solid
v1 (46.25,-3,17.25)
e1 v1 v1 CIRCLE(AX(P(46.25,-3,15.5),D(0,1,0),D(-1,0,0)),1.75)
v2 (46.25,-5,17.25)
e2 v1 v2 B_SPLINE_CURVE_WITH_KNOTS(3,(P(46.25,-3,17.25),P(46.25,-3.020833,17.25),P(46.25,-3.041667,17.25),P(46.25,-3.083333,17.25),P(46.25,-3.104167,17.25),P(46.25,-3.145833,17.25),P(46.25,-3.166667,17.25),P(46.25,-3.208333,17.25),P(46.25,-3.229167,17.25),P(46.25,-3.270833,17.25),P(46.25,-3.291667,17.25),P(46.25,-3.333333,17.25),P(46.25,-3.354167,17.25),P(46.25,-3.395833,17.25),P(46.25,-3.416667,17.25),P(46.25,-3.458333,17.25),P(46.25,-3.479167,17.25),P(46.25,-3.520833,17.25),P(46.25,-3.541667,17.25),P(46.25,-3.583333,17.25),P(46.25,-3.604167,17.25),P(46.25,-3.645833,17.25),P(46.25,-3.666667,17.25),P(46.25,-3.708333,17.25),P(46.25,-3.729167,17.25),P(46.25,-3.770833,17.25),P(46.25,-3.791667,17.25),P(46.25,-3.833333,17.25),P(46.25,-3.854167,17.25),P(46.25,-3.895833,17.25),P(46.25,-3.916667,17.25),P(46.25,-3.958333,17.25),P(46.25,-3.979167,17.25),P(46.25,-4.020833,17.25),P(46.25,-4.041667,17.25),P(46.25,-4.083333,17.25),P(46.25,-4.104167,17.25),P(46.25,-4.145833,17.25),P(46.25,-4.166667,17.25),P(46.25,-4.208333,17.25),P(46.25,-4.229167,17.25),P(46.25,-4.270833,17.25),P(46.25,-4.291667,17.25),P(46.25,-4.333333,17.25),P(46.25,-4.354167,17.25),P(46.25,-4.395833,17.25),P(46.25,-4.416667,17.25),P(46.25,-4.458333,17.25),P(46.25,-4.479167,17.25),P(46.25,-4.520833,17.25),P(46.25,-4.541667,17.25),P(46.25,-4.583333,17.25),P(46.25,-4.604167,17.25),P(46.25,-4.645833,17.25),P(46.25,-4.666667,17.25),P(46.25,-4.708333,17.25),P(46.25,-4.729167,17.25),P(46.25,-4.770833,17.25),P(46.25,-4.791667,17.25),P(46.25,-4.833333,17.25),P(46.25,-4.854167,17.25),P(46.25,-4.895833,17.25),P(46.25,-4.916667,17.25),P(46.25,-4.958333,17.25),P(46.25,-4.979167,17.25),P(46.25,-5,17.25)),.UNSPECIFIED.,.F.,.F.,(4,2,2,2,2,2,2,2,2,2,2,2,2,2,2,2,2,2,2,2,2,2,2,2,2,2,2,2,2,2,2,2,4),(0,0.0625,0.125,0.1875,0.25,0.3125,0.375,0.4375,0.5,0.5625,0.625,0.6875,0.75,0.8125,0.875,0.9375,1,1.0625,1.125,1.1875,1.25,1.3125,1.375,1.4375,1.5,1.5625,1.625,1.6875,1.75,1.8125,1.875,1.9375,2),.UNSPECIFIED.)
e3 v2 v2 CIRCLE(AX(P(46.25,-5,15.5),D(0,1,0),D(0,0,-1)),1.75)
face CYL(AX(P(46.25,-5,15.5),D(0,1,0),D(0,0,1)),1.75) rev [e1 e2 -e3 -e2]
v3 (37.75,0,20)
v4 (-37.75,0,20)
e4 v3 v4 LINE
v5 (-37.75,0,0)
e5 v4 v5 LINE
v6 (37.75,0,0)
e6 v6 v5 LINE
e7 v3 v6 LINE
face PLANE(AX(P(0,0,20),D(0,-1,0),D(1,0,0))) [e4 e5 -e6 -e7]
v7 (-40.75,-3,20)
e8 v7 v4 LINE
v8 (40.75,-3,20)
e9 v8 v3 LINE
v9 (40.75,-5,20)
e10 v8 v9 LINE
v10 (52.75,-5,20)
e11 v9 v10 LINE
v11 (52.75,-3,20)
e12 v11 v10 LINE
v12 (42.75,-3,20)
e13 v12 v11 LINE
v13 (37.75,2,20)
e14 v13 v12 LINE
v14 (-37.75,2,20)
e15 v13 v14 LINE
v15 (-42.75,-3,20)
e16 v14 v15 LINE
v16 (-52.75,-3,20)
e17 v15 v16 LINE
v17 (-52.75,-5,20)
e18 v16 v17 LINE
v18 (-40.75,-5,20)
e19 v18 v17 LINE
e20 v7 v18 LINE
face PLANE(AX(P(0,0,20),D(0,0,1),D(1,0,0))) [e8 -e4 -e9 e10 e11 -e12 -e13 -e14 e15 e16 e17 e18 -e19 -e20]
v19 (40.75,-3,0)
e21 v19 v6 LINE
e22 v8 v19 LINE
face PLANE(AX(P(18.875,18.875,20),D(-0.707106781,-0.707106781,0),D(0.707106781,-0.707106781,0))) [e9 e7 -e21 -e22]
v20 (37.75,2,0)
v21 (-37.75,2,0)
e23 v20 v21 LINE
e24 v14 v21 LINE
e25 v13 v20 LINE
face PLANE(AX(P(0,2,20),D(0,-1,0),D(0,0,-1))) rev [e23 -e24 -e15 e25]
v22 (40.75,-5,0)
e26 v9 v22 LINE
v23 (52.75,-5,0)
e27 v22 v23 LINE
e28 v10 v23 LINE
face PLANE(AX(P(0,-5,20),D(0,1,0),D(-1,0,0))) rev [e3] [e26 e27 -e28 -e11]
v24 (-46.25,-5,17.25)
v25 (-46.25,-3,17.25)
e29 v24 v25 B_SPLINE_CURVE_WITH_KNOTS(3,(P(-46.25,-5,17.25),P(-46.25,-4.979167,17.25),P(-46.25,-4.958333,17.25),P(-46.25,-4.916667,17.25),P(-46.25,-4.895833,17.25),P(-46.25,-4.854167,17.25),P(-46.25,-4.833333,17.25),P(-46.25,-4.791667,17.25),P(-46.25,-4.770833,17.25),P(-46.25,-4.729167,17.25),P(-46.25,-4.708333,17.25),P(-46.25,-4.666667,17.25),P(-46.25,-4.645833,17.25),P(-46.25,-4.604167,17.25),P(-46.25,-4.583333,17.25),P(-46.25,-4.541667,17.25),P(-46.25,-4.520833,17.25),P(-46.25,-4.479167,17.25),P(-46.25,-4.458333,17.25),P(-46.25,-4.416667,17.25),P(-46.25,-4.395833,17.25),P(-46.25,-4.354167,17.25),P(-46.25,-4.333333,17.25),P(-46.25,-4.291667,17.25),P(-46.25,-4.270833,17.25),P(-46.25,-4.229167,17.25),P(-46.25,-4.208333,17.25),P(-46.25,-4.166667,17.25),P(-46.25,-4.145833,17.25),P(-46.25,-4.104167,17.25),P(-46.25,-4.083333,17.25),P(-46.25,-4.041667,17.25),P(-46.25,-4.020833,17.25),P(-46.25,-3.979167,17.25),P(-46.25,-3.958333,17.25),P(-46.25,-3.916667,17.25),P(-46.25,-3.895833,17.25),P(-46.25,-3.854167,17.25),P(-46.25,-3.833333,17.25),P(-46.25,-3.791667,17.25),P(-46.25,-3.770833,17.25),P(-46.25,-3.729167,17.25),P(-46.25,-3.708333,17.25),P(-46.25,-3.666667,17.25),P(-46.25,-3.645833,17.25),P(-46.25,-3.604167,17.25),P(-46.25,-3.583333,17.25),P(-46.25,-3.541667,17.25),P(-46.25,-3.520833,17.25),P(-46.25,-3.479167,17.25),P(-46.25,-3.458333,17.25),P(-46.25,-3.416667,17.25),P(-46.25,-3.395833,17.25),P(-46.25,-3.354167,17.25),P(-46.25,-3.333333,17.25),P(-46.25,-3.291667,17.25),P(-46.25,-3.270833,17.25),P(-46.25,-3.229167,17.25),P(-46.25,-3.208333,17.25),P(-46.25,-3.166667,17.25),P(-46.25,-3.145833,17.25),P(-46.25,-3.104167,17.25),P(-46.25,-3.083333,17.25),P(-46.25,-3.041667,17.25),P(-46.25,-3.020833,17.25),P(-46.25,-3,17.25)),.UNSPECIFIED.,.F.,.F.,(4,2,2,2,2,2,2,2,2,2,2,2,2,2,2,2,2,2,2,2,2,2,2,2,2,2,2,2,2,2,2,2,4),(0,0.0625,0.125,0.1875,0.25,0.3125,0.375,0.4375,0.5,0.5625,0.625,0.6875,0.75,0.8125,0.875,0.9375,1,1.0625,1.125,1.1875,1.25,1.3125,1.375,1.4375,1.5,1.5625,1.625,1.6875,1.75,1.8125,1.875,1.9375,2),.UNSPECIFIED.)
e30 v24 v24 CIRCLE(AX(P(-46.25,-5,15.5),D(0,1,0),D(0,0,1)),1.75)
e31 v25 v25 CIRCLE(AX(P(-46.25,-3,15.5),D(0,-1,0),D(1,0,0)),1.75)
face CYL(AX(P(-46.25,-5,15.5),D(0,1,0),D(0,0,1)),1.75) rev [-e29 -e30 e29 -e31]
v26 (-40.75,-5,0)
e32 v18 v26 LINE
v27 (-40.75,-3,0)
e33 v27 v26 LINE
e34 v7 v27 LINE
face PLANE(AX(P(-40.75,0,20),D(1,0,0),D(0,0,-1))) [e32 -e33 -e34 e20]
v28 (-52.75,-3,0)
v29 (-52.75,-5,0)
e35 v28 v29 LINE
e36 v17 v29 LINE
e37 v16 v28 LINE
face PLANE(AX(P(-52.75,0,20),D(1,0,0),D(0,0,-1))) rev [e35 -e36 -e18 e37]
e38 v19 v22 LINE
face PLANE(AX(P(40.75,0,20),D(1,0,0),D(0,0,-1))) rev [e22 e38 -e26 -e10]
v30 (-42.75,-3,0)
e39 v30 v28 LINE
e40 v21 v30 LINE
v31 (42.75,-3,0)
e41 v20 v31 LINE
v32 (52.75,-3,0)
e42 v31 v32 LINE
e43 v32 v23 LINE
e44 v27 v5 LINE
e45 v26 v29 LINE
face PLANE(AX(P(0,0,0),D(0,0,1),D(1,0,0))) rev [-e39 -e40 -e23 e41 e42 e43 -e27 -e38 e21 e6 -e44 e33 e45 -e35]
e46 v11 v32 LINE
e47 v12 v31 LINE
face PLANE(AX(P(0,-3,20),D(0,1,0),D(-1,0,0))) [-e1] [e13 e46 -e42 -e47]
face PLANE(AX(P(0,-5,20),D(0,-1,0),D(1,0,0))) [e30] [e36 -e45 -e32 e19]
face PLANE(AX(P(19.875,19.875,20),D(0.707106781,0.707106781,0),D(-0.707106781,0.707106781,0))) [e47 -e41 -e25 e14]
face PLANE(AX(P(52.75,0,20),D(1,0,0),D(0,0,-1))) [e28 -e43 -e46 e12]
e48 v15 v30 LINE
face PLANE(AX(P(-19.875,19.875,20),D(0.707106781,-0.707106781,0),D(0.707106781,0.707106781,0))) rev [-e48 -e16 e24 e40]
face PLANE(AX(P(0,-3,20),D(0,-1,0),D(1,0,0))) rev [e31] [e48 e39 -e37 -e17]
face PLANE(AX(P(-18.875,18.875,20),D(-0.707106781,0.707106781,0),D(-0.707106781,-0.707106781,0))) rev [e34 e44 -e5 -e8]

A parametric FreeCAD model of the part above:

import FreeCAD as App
import Part
import Sketcher

doc = App.newDocument("Part")
body = doc.addObject("PartDesign::Body", "Body")

# Sketch on XY plane
sketch1 = doc.addObject("Sketcher::SketchObject", "Sketch")
body.addObject(sketch1)
sketch1.AttachmentSupport = (doc.XY_Plane, [""])
sketch1.MapMode = "FlatFace"
sketch1.addGeometry([
    Part.LineSegment(App.Vector(-52.8, -3, 0), App.Vector(-52.8, -5, 0)),  # 0
    Part.LineSegment(App.Vector(-52.8, -5, 0), App.Vector(-40.8, -5, 0)),  # 1
    Part.LineSegment(App.Vector(-40.8, -5, 0), App.Vector(-40.8, -3, 0)),  # 2
    Part.LineSegment(App.Vector(-40.8, -3, 0), App.Vector(-37.8, 0, 0)),  # 3
    Part.LineSegment(App.Vector(-37.8, 0, 0), App.Vector(37.8, 0, 0)),  # 4
    Part.LineSegment(App.Vector(37.8, 0, 0), App.Vector(40.8, -3, 0)),  # 5
    Part.LineSegment(App.Vector(40.8, -3, 0), App.Vector(40.8, -5, 0)),  # 6
    Part.LineSegment(App.Vector(40.8, -5, 0), App.Vector(52.8, -5, 0)),  # 7
    Part.LineSegment(App.Vector(52.8, -5, 0), App.Vector(52.8, -3, 0)),  # 8
    Part.LineSegment(App.Vector(52.8, -3, 0), App.Vector(42.8, -3, 0)),  # 9
    Part.LineSegment(App.Vector(42.8, -3, 0), App.Vector(37.8, 2, 0)),  # 10
    Part.LineSegment(App.Vector(37.8, 2, 0), App.Vector(-37.8, 2, 0)),  # 11
    Part.LineSegment(App.Vector(-37.8, 2, 0), App.Vector(-42.8, -3, 0)),  # 12
    Part.LineSegment(App.Vector(-42.8, -3, 0), App.Vector(-52.8, -3, 0)),  # 13
], False)
sketch1.addConstraint([
    Sketcher.Constraint("Coincident", 0, 2, 1, 1),
    Sketcher.Constraint("Coincident", 1, 2, 2, 1),
    Sketcher.Constraint("Coincident", 2, 2, 3, 1),
    Sketcher.Constraint("Coincident", 3, 2, 4, 1),
    Sketcher.Constraint("Coincident", 4, 2, 5, 1),
    Sketcher.Constraint("Coincident", 5, 2, 6, 1),
    Sketcher.Constraint("Coincident", 6, 2, 7, 1),
    Sketcher.Constraint("Coincident", 7, 2, 8, 1),
    Sketcher.Constraint("Coincident", 8, 2, 9, 1),
    Sketcher.Constraint("Coincident", 9, 2, 10, 1),
    Sketcher.Constraint("Coincident", 10, 2, 11, 1),
    Sketcher.Constraint("Coincident", 11, 2, 12, 1),
    Sketcher.Constraint("Coincident", 12, 2, 13, 1),
    Sketcher.Constraint("Coincident", 13, 2, 0, 1),
    Sketcher.Constraint("Vertical", 0),
    Sketcher.Constraint("Horizontal", 1),
    Sketcher.Constraint("Vertical", 2),
    Sketcher.Constraint("Horizontal", 4),
    Sketcher.Constraint("Vertical", 6),
    Sketcher.Constraint("Horizontal", 7),
    Sketcher.Constraint("Vertical", 8),
    Sketcher.Constraint("Horizontal", 9),
    Sketcher.Constraint("Horizontal", 11),
    Sketcher.Constraint("Horizontal", 13),
    Sketcher.Constraint("Symmetric", 3, 2, 4, 2, -1, 1),
    Sketcher.Constraint("Symmetric", 2, 2, 5, 2, -2),
    Sketcher.Constraint("Symmetric", 0, 2, 7, 2, -2),
    Sketcher.Constraint("Symmetric", 9, 2, 12, 2, -2),
    Sketcher.Constraint("Perpendicular", 3, 5),
    Sketcher.Constraint("Parallel", 5, 10),
    Sketcher.Constraint("Perpendicular", 10, 12),
    Sketcher.Constraint("Horizontal", 5, 2, 8, 2),
    Sketcher.Constraint("Vertical", 4, 2, 10, 2),
    Sketcher.Constraint("DistanceX", 1, 1, 1, 2, 12.0),
    Sketcher.Constraint("DistanceX", 9, 2, 9, 1, 10.0),
    Sketcher.Constraint("DistanceY", 0, 2, 0, 1, 2.0),
    Sketcher.Constraint("DistanceX", 4, 1, 4, 2, 75.5),
    Sketcher.Constraint("DistanceY", 0, 2, -1, 1, 5.0),
])
pad1 = doc.addObject("PartDesign::Pad", "Pad")
body.addObject(pad1)
pad1.Profile = sketch1
pad1.Length = 20

# Sketch on XZ plane
sketch2 = doc.addObject("Sketcher::SketchObject", "Sketch001")
body.addObject(sketch2)
sketch2.AttachmentSupport = (doc.XZ_Plane, [""])
sketch2.MapMode = "FlatFace"
sketch2.AttachmentOffset = App.Placement(App.Vector(0, 0, -2), App.Rotation())
sketch2.addGeometry([
    Part.Circle(App.Vector(-46.2, 15.5, 0), App.Vector(0, 0, 1), 1.8),
    Part.Circle(App.Vector(46.2, 15.5, 0), App.Vector(0, 0, 1), 1.8),
], False)
sketch2.addConstraint([
    Sketcher.Constraint("Equal", 0, 1),
    Sketcher.Constraint("Symmetric", 0, 3, 1, 3, -2),
    Sketcher.Constraint("Diameter", 0, 3.5),
    Sketcher.Constraint("DistanceY", -1, 1, 0, 3, 15.5),
    Sketcher.Constraint("DistanceX", 0, 3, 1, 3, 92.5),
])
pocket1 = doc.addObject("PartDesign::Pocket", "Pocket")
body.addObject(pocket1)
pocket1.Profile = sketch2
pocket1.Type = "ThroughAll"
pocket1.Reversed = True

doc.recompute()
